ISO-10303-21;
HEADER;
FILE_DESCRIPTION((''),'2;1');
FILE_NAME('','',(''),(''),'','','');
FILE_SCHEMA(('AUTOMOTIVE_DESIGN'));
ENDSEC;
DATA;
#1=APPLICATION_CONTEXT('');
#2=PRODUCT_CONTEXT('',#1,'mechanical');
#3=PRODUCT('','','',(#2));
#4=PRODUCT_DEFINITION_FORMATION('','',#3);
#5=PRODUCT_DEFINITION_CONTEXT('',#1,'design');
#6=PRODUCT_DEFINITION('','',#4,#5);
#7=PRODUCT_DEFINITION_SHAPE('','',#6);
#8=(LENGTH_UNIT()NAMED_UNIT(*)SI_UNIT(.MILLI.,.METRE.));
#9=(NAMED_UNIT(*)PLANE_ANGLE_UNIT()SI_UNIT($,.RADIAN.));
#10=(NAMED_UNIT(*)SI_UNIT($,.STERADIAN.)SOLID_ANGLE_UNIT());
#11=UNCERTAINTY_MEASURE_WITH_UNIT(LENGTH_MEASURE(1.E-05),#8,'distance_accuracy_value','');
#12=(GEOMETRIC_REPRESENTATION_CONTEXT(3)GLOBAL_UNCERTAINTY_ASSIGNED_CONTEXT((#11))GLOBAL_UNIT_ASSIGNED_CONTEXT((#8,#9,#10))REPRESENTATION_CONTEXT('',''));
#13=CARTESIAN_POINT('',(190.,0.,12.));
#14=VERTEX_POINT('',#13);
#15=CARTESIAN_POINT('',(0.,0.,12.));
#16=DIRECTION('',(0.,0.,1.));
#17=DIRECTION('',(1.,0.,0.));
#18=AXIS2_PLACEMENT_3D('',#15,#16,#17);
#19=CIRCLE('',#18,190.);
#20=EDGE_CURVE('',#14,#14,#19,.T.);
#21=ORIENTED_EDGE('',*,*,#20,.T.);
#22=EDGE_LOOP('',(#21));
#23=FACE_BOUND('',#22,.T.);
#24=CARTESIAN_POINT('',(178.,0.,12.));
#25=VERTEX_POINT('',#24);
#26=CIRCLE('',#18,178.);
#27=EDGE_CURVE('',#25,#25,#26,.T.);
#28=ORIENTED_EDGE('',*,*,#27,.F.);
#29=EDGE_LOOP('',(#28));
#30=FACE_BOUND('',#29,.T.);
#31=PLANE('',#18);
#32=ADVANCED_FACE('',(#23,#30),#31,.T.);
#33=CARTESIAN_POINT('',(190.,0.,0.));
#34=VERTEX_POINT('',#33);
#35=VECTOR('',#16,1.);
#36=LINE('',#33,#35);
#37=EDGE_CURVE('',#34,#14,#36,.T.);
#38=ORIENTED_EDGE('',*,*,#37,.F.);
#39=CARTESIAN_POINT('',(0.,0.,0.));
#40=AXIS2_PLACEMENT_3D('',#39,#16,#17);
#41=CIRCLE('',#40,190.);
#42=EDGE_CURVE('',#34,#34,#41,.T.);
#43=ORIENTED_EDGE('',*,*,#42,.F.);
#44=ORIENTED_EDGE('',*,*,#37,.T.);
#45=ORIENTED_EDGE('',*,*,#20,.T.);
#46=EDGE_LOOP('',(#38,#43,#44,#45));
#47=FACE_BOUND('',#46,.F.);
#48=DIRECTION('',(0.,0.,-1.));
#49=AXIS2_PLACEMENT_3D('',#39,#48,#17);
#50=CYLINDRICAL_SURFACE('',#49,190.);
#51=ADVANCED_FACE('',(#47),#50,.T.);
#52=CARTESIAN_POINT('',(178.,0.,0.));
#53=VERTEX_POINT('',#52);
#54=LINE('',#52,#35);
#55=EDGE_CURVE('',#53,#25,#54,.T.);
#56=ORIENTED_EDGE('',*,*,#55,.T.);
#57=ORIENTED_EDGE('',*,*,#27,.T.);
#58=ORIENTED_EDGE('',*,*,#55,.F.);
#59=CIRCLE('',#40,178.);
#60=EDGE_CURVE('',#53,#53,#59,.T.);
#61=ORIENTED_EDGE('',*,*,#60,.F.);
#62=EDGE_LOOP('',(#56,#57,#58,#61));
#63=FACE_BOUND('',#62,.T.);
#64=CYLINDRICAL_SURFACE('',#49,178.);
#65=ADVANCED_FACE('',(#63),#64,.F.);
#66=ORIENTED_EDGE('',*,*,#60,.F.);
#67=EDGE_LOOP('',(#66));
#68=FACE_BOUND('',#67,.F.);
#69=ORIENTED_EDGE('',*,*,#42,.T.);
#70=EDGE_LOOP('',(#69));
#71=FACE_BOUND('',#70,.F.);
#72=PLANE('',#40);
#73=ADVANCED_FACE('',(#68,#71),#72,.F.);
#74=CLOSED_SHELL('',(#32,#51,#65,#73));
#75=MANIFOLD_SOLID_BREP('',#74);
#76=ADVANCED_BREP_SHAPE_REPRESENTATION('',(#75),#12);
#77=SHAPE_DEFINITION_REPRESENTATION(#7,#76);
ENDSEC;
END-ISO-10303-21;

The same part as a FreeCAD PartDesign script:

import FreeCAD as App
import Part
import Sketcher

V = App.Vector
Q = App.Units.Quantity

doc = App.newDocument("Part")
body = doc.addObject("PartDesign::Body", "Body")

# Sketch on XY plane
sketch1 = body.newObject("Sketcher::SketchObject", "Sketch")
sketch1.AttachmentSupport = (doc.getObject("XY_Plane"), [""])
sketch1.MapMode = "FlatFace"
sketch1.addGeometry([
    Part.Circle(V(0, 0, 0), V(0, 0, 1), 190),
    Part.Circle(V(0, 0, 0), V(0, 0, 1), 178),
], False)
sketch1.addConstraint([
    Sketcher.Constraint("Coincident", 0, 3, -1, 1),
    Sketcher.Constraint("Coincident", 1, 3, -1, 1),
    Sketcher.Constraint("Diameter", 0, Q("380 mm")),
    Sketcher.Constraint("Diameter", 1, Q("356 mm")),
])
pad1 = body.newObject("PartDesign::Pad", "Pad")
pad1.Profile = sketch1
pad1.Length = 12

doc.recompute()
